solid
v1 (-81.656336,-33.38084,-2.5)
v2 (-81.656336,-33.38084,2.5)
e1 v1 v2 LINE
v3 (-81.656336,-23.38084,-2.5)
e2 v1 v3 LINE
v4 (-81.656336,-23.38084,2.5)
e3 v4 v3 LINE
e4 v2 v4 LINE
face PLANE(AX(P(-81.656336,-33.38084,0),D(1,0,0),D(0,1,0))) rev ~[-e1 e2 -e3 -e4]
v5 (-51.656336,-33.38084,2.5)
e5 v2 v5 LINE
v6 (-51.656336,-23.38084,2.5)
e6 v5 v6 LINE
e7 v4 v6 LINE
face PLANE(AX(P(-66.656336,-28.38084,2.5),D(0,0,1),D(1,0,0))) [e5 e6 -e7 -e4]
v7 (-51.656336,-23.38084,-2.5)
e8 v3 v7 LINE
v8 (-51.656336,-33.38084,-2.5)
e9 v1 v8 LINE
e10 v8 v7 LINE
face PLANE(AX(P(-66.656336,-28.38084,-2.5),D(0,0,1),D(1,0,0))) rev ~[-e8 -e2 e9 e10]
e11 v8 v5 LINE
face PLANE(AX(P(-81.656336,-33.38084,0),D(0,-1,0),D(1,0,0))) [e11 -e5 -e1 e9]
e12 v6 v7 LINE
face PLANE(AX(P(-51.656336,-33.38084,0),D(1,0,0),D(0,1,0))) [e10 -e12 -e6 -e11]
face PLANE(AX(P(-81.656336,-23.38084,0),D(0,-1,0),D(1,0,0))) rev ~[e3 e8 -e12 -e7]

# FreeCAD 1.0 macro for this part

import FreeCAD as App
import Part
import Sketcher

V = App.Vector
Q = App.Units.Quantity


def add_polygon(sketch, points):
    """Adds a closed chain of lines whose ends are joined by coincident constraints."""
    first, n = sketch.GeometryCount, len(points)
    for a, b in zip(points, points[1:] + points[:1]):
        sketch.addGeometry(Part.LineSegment(App.Vector(*a, 0), App.Vector(*b, 0)), False)
    for i in range(n):
        sketch.addConstraint(Sketcher.Constraint("Coincident", first + i, 2, first + (i + 1) % n, 1))

doc = App.newDocument("Part")
body = doc.addObject("PartDesign::Body", "Body")

sketch1 = body.newObject("Sketcher::SketchObject", "Sketch")
sketch1.AttachmentSupport = (doc.getObject("XY_Plane"), [""])
sketch1.MapMode = "FlatFace"
add_polygon(sketch1, [(-82, -23), (-82, -33), (-52, -33), (-52, -23)])
sketch1.addConstraint([
    Sketcher.Constraint("Vertical", 0),
    Sketcher.Constraint("Horizontal", 1),
    Sketcher.Constraint("Vertical", 2),
    Sketcher.Constraint("Horizontal", 3),
    Sketcher.Constraint("DistanceX", 1, 1, 1, 2, Q("30 mm")),
    Sketcher.Constraint("DistanceY", 0, 2, 0, 1, Q("10 mm")),
    Sketcher.Constraint("DistanceY", 0, 2, -1, 1, Q("33.38084 mm")),
    Sketcher.Constraint("DistanceX", 0, 2, -1, 1, Q("81.656336 mm")),
])
pad1 = body.newObject("PartDesign::Pad", "Pad")
pad1.Profile = sketch1
pad1.Length = 5
pad1.Midplane = True

doc.recompute()
